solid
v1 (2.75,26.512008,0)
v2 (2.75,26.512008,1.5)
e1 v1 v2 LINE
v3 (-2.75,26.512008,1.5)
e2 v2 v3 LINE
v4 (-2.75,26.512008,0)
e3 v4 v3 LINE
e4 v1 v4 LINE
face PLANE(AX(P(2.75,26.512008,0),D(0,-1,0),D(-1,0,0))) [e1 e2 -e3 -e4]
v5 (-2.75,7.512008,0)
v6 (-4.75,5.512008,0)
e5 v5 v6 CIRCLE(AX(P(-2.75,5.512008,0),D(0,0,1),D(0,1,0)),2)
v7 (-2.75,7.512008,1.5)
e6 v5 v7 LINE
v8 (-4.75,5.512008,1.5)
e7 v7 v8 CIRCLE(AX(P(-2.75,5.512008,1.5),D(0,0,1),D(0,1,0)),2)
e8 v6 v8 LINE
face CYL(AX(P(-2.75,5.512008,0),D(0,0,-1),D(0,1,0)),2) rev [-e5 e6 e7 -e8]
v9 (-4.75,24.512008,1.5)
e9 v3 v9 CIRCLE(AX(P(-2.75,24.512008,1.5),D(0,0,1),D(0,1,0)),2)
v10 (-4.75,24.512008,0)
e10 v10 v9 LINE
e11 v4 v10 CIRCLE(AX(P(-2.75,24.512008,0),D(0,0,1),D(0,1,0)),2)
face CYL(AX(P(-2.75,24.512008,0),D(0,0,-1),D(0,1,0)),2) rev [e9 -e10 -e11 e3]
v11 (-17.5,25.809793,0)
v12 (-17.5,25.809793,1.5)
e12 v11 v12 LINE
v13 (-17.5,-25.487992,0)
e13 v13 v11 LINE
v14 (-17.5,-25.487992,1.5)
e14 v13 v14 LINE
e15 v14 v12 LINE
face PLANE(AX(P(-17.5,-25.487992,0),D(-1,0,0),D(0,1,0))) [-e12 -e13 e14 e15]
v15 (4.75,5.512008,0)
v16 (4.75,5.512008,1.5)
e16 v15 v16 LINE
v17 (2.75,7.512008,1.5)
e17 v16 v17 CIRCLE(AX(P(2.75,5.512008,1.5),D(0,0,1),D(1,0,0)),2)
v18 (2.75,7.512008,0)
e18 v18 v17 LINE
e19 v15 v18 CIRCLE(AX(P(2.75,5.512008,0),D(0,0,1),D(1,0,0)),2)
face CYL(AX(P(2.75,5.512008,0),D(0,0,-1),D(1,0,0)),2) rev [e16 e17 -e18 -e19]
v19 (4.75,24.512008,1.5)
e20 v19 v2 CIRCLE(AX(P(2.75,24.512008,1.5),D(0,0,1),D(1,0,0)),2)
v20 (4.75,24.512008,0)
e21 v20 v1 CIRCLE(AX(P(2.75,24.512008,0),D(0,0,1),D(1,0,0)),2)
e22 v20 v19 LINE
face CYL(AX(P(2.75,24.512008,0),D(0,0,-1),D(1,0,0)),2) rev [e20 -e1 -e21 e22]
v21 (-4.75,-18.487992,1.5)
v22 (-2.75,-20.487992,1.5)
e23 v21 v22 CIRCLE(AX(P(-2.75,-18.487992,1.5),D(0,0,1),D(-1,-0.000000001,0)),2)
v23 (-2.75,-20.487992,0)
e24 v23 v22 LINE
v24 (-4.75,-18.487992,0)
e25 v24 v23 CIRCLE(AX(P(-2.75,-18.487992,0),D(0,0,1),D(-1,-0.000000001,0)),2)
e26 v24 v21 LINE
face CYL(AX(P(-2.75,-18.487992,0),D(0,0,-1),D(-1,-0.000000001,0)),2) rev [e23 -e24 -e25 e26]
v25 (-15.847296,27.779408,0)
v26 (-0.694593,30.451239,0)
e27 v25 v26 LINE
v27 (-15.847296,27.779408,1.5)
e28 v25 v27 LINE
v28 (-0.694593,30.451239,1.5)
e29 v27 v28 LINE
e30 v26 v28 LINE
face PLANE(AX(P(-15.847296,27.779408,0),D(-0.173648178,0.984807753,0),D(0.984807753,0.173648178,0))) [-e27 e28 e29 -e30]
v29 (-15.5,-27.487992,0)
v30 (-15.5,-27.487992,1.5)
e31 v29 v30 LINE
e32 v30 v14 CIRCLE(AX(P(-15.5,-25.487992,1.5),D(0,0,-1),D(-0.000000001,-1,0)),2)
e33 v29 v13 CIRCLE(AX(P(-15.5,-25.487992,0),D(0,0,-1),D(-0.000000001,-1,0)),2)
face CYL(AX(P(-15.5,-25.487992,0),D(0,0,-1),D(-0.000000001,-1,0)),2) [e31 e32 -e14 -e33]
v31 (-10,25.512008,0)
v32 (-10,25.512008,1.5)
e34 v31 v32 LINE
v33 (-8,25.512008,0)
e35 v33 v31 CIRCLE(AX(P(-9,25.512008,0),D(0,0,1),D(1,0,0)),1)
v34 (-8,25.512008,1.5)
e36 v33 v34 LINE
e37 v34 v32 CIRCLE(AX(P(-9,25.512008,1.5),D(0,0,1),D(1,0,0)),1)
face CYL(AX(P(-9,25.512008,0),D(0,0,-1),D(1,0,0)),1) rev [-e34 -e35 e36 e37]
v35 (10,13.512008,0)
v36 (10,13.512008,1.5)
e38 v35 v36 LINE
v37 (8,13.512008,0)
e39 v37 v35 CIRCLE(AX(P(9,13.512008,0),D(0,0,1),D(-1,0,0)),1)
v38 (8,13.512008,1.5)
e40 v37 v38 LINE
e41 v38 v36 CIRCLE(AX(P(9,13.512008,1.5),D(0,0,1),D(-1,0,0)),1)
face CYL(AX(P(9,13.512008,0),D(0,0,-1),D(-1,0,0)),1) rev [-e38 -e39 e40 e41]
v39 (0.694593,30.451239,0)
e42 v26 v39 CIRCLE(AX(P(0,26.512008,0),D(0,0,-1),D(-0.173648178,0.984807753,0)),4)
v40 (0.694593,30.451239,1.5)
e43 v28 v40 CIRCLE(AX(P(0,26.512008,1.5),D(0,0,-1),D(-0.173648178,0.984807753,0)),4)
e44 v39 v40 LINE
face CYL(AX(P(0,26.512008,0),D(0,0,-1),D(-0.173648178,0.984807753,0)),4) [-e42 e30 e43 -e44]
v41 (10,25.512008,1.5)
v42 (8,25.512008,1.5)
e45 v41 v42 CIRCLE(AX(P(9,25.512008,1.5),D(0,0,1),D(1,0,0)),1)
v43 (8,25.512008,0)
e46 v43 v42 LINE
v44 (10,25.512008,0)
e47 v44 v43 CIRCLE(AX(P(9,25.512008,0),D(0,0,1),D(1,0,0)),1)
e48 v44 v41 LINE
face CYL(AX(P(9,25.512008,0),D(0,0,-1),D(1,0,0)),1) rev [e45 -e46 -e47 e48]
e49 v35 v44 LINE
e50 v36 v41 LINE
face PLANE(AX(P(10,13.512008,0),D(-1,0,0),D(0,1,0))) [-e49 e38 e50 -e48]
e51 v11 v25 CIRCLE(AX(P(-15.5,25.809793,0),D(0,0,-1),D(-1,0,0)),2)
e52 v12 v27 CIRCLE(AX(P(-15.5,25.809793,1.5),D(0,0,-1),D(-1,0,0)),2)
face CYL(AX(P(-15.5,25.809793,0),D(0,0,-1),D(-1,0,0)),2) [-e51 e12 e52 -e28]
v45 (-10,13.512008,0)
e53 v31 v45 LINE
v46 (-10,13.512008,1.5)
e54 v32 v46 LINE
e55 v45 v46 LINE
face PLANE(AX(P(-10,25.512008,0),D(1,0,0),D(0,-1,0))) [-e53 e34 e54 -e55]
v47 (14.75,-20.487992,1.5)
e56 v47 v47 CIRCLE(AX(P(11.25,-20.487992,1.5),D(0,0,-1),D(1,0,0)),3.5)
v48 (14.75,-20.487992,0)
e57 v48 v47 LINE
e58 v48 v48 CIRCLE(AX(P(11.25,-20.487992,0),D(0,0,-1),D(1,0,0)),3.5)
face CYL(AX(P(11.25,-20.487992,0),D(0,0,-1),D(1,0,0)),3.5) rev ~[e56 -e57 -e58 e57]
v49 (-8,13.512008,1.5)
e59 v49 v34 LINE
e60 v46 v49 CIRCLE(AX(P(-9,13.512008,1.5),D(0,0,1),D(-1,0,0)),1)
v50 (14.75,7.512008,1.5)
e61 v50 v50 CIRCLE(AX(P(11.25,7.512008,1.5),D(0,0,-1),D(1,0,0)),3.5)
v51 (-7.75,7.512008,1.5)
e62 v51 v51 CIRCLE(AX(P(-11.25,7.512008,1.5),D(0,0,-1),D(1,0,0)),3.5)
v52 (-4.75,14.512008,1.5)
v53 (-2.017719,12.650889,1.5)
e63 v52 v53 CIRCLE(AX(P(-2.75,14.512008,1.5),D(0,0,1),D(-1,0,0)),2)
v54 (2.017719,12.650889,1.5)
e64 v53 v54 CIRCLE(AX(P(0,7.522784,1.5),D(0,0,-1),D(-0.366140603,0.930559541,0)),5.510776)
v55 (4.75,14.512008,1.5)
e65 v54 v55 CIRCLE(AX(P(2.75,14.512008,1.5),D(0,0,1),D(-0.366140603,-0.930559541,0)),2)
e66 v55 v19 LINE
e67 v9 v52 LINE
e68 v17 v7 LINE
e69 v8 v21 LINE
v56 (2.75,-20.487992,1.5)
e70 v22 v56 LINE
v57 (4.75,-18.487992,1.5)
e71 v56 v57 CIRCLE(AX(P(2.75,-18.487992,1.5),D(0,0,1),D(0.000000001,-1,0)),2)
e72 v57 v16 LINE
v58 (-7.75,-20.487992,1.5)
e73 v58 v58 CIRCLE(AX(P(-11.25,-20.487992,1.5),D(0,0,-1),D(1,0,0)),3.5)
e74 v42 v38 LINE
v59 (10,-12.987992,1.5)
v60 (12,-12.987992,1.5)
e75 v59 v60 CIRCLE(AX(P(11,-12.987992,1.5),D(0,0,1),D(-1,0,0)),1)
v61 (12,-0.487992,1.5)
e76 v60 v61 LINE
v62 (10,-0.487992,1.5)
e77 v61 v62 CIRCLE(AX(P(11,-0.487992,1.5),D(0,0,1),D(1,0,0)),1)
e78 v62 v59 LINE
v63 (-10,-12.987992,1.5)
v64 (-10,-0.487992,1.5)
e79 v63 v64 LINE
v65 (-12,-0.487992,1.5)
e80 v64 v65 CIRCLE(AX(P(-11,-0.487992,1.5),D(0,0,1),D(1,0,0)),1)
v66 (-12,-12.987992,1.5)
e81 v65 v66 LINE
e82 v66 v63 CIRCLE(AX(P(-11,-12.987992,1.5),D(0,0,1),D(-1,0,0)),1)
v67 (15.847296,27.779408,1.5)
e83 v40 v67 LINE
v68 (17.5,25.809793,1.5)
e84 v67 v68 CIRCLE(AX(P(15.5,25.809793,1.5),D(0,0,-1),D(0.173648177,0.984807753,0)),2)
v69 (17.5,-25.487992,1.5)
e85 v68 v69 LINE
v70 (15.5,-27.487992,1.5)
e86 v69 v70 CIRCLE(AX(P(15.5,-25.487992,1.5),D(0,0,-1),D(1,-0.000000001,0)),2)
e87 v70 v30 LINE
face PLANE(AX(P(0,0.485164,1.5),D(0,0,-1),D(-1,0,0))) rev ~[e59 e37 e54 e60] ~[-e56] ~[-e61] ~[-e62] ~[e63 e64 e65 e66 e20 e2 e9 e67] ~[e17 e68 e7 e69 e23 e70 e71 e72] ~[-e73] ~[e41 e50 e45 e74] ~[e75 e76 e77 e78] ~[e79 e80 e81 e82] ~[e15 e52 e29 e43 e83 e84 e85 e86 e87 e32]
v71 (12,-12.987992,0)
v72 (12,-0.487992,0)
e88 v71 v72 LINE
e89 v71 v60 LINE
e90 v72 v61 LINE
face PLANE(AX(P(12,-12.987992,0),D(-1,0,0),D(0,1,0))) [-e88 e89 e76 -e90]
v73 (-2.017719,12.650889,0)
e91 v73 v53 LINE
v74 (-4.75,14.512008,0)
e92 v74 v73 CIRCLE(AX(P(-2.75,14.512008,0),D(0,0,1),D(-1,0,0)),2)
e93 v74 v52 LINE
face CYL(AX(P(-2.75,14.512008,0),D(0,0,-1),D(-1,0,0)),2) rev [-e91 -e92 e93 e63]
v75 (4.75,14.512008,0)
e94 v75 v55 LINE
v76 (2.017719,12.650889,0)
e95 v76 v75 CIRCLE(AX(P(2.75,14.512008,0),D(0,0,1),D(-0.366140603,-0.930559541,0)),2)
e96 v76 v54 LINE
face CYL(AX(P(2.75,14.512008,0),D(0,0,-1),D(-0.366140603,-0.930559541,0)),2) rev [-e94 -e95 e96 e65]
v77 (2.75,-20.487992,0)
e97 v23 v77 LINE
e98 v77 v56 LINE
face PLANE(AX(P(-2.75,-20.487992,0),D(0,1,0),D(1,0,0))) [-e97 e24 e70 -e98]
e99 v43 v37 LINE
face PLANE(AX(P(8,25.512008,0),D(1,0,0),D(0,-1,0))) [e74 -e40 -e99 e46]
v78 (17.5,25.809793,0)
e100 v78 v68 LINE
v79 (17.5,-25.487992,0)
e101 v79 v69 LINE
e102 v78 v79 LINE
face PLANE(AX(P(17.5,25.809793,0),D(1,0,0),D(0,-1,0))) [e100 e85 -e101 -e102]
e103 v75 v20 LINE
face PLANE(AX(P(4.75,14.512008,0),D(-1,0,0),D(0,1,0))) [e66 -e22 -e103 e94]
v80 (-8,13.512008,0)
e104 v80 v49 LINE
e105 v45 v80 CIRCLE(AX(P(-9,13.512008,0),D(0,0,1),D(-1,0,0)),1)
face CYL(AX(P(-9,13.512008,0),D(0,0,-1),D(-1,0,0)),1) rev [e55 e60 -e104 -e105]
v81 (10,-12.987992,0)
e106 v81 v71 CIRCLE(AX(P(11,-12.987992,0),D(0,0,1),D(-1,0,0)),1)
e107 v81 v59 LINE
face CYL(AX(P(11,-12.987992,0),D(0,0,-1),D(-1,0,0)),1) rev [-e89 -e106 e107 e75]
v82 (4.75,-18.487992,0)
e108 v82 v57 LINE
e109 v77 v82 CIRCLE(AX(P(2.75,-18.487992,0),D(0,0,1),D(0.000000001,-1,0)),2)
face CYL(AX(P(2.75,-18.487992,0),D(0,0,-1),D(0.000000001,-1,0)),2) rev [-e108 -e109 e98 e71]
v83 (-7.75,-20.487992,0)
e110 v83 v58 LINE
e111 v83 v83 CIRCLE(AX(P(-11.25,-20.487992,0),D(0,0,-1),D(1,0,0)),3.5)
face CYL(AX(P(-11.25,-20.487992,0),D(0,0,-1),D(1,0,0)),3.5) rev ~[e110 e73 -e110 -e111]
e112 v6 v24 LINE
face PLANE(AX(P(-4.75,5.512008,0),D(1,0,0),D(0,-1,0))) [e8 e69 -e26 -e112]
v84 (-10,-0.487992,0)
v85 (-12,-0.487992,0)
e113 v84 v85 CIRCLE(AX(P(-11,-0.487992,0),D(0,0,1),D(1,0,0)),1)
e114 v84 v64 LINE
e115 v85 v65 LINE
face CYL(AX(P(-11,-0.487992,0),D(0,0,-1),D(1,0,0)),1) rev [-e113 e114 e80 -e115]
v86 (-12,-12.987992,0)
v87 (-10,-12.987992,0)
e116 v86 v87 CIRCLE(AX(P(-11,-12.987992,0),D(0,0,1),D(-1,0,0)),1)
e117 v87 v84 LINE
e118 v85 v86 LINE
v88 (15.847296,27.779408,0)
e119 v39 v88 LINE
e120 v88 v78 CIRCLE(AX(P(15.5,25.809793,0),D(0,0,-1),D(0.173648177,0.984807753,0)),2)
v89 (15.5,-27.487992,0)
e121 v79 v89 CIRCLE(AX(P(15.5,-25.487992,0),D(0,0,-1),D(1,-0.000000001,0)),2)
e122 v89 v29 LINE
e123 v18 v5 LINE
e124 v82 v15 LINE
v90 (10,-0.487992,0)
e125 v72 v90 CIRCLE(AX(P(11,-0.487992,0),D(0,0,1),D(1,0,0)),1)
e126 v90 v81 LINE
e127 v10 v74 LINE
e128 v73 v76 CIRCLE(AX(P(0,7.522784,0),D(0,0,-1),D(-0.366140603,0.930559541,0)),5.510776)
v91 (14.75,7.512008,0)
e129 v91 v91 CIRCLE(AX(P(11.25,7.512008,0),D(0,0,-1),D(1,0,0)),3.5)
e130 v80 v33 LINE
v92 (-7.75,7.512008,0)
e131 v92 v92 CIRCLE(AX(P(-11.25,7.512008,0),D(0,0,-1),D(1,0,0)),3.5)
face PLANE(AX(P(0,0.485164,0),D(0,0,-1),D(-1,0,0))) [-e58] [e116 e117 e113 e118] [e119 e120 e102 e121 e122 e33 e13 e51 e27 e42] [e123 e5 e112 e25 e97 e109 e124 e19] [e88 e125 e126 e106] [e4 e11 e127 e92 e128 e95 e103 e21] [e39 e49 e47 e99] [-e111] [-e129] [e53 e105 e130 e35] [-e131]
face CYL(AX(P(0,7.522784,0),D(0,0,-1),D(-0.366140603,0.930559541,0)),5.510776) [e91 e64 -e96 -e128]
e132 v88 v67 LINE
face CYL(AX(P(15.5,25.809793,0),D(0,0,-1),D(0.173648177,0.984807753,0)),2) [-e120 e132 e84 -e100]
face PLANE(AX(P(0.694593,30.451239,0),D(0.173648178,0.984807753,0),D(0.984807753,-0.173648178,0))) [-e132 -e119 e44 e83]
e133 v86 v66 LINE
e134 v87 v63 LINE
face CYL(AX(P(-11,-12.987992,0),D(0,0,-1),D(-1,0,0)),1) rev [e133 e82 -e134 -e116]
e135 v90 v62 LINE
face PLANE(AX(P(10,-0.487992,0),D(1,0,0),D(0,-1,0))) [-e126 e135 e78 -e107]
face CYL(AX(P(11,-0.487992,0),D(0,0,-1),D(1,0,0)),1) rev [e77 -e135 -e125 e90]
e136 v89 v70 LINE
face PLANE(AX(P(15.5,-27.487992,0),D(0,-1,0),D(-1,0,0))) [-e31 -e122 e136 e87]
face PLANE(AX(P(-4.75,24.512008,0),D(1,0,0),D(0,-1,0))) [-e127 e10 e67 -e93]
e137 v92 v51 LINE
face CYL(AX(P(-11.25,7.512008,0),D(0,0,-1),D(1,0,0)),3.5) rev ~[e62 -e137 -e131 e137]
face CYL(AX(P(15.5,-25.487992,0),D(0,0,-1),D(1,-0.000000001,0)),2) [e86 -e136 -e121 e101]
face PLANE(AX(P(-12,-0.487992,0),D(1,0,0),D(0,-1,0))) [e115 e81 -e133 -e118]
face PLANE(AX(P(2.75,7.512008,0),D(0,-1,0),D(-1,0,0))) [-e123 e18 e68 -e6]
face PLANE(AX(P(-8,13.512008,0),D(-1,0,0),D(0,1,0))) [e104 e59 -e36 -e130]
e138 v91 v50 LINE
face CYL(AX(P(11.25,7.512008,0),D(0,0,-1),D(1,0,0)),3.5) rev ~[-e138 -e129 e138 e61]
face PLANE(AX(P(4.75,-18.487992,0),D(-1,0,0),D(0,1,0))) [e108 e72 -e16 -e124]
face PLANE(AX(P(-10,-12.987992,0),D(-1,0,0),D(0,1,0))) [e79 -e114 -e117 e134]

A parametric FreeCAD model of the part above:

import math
import FreeCAD as App
import Part
import Sketcher

V = App.Vector
Q = App.Units.Quantity

doc = App.newDocument("Part")
body = doc.addObject("PartDesign::Body", "Body")

# Sketch on XY plane
sketch1 = doc.addObject("Sketcher::SketchObject", "Sketch")
body.addObject(sketch1)
sketch1.AttachmentSupport = (doc.XY_Plane, [""])
sketch1.MapMode = "FlatFace"
sketch1.addGeometry([
    Part.LineSegment(V(-15.847296, 27.779408, 0), V(-0.694593, 30.451239, 0)),  # 0
    Part.ArcOfCircle(Part.Circle(V(0, 26.512008, 0), V(0, 0, 1), 4), math.radians(80), math.radians(100)),  # 1
    Part.LineSegment(V(0.694593, 30.451239, 0), V(15.847296, 27.779408, 0)),  # 2
    Part.ArcOfCircle(Part.Circle(V(15.5, 25.809793, 0), V(0, 0, 1), 2), math.radians(0), math.radians(80)),  # 3
    Part.LineSegment(V(17.5, 25.809793, 0), V(17.5, -25.487992, 0)),  # 4
    Part.ArcOfCircle(Part.Circle(V(15.5, -25.487992, 0), V(0, 0, 1), 2), math.radians(-90), math.radians(0)),  # 5
    Part.LineSegment(V(15.5, -27.487992, 0), V(-15.5, -27.487992, 0)),  # 6
    Part.ArcOfCircle(Part.Circle(V(-15.5, -25.487992, 0), V(0, 0, 1), 2), math.radians(-180), math.radians(-90)),  # 7
    Part.LineSegment(V(-17.5, -25.487992, 0), V(-17.5, 25.809793, 0)),  # 8
    Part.ArcOfCircle(Part.Circle(V(-15.5, 25.809793, 0), V(0, 0, 1), 2), math.radians(100), math.radians(180)),  # 9
    Part.Circle(V(11.25, -20.487992, 0), V(0, 0, 1), 3.5),  # 10
    Part.ArcOfCircle(Part.Circle(V(11, -0.487992, 0), V(0, 0, 1), 1), math.radians(0), math.radians(180)),  # 11
    Part.LineSegment(V(10, -0.487992, 0), V(10, -12.987992, 0)),  # 12
    Part.ArcOfCircle(Part.Circle(V(11, -12.987992, 0), V(0, 0, 1), 1), math.radians(180), math.radians(360)),  # 13
    Part.LineSegment(V(12, -12.987992, 0), V(12, -0.487992, 0)),  # 14
    Part.Circle(V(-11.25, -20.487992, 0), V(0, 0, 1), 3.5),  # 15
    Part.ArcOfCircle(Part.Circle(V(-2.75, 5.512008, 0), V(0, 0, 1), 2), math.radians(90), math.radians(180)),  # 16
    Part.LineSegment(V(-4.75, 5.512008, 0), V(-4.75, -18.487992, 0)),  # 17
    Part.ArcOfCircle(Part.Circle(V(-2.75, -18.487992, 0), V(0, 0, 1), 2), math.radians(-180), math.radians(-90)),  # 18
    Part.LineSegment(V(-2.75, -20.487992, 0), V(2.75, -20.487992, 0)),  # 19
    Part.ArcOfCircle(Part.Circle(V(2.75, -18.487992, 0), V(0, 0, 1), 2), math.radians(-90), math.radians(0)),  # 20
    Part.LineSegment(V(4.75, -18.487992, 0), V(4.75, 5.512008, 0)),  # 21
    Part.ArcOfCircle(Part.Circle(V(2.75, 5.512008, 0), V(0, 0, 1), 2), math.radians(0), math.radians(90)),  # 22
    Part.LineSegment(V(2.75, 7.512008, 0), V(-2.75, 7.512008, 0)),  # 23
    Part.ArcOfCircle(Part.Circle(V(-11, -0.487992, 0), V(0, 0, 1), 1), math.radians(0), math.radians(180)),  # 24
    Part.LineSegment(V(-12, -0.487992, 0), V(-12, -12.987992, 0)),  # 25
    Part.ArcOfCircle(Part.Circle(V(-11, -12.987992, 0), V(0, 0, 1), 1), math.radians(180), math.radians(360)),  # 26
    Part.LineSegment(V(-10, -12.987992, 0), V(-10, -0.487992, 0)),  # 27
    Part.Circle(V(11.25, 7.512008, 0), V(0, 0, 1), 3.5),  # 28
    Part.ArcOfCircle(Part.Circle(V(9, 25.512008, 0), V(0, 0, 1), 1), math.radians(0), math.radians(180)),  # 29
    Part.LineSegment(V(8, 25.512008, 0), V(8, 13.512008, 0)),  # 30
    Part.ArcOfCircle(Part.Circle(V(9, 13.512008, 0), V(0, 0, 1), 1), math.radians(180), math.radians(360)),  # 31
    Part.LineSegment(V(10, 13.512008, 0), V(10, 25.512008, 0)),  # 32
    Part.ArcOfCircle(Part.Circle(V(2.75, 14.512008, 0), V(0, 0, 1), 2), math.radians(-111.477794), math.radians(0)),  # 33
    Part.LineSegment(V(4.75, 14.512008, 0), V(4.75, 24.512008, 0)),  # 34
    Part.ArcOfCircle(Part.Circle(V(2.75, 24.512008, 0), V(0, 0, 1), 2), math.radians(0), math.radians(90)),  # 35
    Part.LineSegment(V(2.75, 26.512008, 0), V(-2.75, 26.512008, 0)),  # 36
    Part.ArcOfCircle(Part.Circle(V(-2.75, 24.512008, 0), V(0, 0, 1), 2), math.radians(90), math.radians(180)),  # 37
    Part.LineSegment(V(-4.75, 24.512008, 0), V(-4.75, 14.512008, 0)),  # 38
    Part.ArcOfCircle(Part.Circle(V(-2.75, 14.512008, 0), V(0, 0, 1), 2), math.radians(180), math.radians(291.477794)),  # 39
    Part.ArcOfCircle(Part.Circle(V(0, 7.522784, 0), V(0, 0, 1), 5.510776), math.radians(68.522206), math.radians(111.477794)),  # 40
    Part.Circle(V(-11.25, 7.512008, 0), V(0, 0, 1), 3.5),  # 41
    Part.ArcOfCircle(Part.Circle(V(-9, 25.512008, 0), V(0, 0, 1), 1), math.radians(0), math.radians(180)),  # 42
    Part.LineSegment(V(-10, 25.512008, 0), V(-10, 13.512008, 0)),  # 43
    Part.ArcOfCircle(Part.Circle(V(-9, 13.512008, 0), V(0, 0, 1), 1), math.radians(180), math.radians(360)),  # 44
    Part.LineSegment(V(-8, 13.512008, 0), V(-8, 25.512008, 0)),  # 45
], False)
sketch1.addConstraint([
    Sketcher.Constraint("Tangent", 0, 2, 1, 2),
    Sketcher.Constraint("Tangent", 1, 1, 2, 1),
    Sketcher.Constraint("Tangent", 2, 2, 3, 2),
    Sketcher.Constraint("Tangent", 3, 1, 4, 1),
    Sketcher.Constraint("Tangent", 4, 2, 5, 2),
    Sketcher.Constraint("Tangent", 5, 1, 6, 1),
    Sketcher.Constraint("Tangent", 6, 2, 7, 2),
    Sketcher.Constraint("Tangent", 7, 1, 8, 1),
    Sketcher.Constraint("Tangent", 8, 2, 9, 2),
    Sketcher.Constraint("Tangent", 9, 1, 0, 1),
    Sketcher.Constraint("Tangent", 11, 2, 12, 1),
    Sketcher.Constraint("Tangent", 12, 2, 13, 1),
    Sketcher.Constraint("Tangent", 13, 2, 14, 1),
    Sketcher.Constraint("Tangent", 14, 2, 11, 1),
    Sketcher.Constraint("Tangent", 16, 2, 17, 1),
    Sketcher.Constraint("Tangent", 17, 2, 18, 1),
    Sketcher.Constraint("Tangent", 18, 2, 19, 1),
    Sketcher.Constraint("Tangent", 19, 2, 20, 1),
    Sketcher.Constraint("Tangent", 20, 2, 21, 1),
    Sketcher.Constraint("Tangent", 21, 2, 22, 1),
    Sketcher.Constraint("Tangent", 22, 2, 23, 1),
    Sketcher.Constraint("Tangent", 23, 2, 16, 1),
    Sketcher.Constraint("Tangent", 24, 2, 25, 1),
    Sketcher.Constraint("Tangent", 25, 2, 26, 1),
    Sketcher.Constraint("Tangent", 26, 2, 27, 1),
    Sketcher.Constraint("Tangent", 27, 2, 24, 1),
    Sketcher.Constraint("Tangent", 29, 2, 30, 1),
    Sketcher.Constraint("Tangent", 30, 2, 31, 1),
    Sketcher.Constraint("Tangent", 31, 2, 32, 1),
    Sketcher.Constraint("Tangent", 32, 2, 29, 1),
    Sketcher.Constraint("Tangent", 33, 2, 34, 1),
    Sketcher.Constraint("Tangent", 34, 2, 35, 1),
    Sketcher.Constraint("Tangent", 35, 2, 36, 1),
    Sketcher.Constraint("Tangent", 36, 2, 37, 1),
    Sketcher.Constraint("Tangent", 37, 2, 38, 1),
    Sketcher.Constraint("Tangent", 38, 2, 39, 1),
    Sketcher.Constraint("Tangent", 39, 2, 40, 2),
    Sketcher.Constraint("Tangent", 40, 1, 33, 1),
    Sketcher.Constraint("Tangent", 42, 2, 43, 1),
    Sketcher.Constraint("Tangent", 43, 2, 44, 1),
    Sketcher.Constraint("Tangent", 44, 2, 45, 1),
    Sketcher.Constraint("Tangent", 45, 2, 42, 1),
    Sketcher.Constraint("Vertical", 4),
    Sketcher.Constraint("Horizontal", 6),
    Sketcher.Constraint("Vertical", 8),
    Sketcher.Constraint("Vertical", 12),
    Sketcher.Constraint("Vertical", 14),
    Sketcher.Constraint("Vertical", 17),
    Sketcher.Constraint("Horizontal", 19),
    Sketcher.Constraint("Vertical", 21),
    Sketcher.Constraint("Horizontal", 23),
    Sketcher.Constraint("Vertical", 25),
    Sketcher.Constraint("Vertical", 27),
    Sketcher.Constraint("Vertical", 30),
    Sketcher.Constraint("Vertical", 32),
    Sketcher.Constraint("Vertical", 34),
    Sketcher.Constraint("Horizontal", 36),
    Sketcher.Constraint("Vertical", 38),
    Sketcher.Constraint("Vertical", 43),
    Sketcher.Constraint("Vertical", 45),
    Sketcher.Constraint("Equal", 3, 5),
    Sketcher.Constraint("Equal", 5, 7),
    Sketcher.Constraint("Equal", 7, 9),
    Sketcher.Constraint("Equal", 10, 15),
    Sketcher.Constraint("Equal", 9, 16),
    Sketcher.Constraint("Equal", 16, 18),
    Sketcher.Constraint("Equal", 18, 20),
    Sketcher.Constraint("Equal", 20, 22),
    Sketcher.Constraint("Equal", 13, 24),
    Sketcher.Constraint("Equal", 15, 28),
    Sketcher.Constraint("Equal", 26, 29),
    Sketcher.Constraint("Equal", 22, 33),
    Sketcher.Constraint("Equal", 33, 35),
    Sketcher.Constraint("Equal", 35, 37),
    Sketcher.Constraint("Equal", 37, 39),
    Sketcher.Constraint("Equal", 28, 41),
    Sketcher.Constraint("Equal", 31, 42),
    Sketcher.Constraint("Symmetric", 3, 3, 9, 3, -2),
    Sketcher.Constraint("Symmetric", 10, 3, 15, 3, -2),
    Sketcher.Constraint("Symmetric", 11, 3, 24, 3, -2),
    Sketcher.Constraint("Symmetric", 33, 3, 39, 3, -2),
    Sketcher.Constraint("Symmetric", 28, 3, 41, 3, -2),
    Sketcher.Constraint("Symmetric", 29, 3, 42, 3, -2),
    Sketcher.Constraint("PointOnObject", 1, 3, -2),
    Sketcher.Constraint("Horizontal", 13, 3, 26, 3),
    Sketcher.Constraint("Horizontal", 31, 3, 44, 3),
    Sketcher.Constraint("Horizontal", 15, 3, 18, 2),
    Sketcher.Constraint("Horizontal", 41, 3, 22, 2),
    Sketcher.Constraint("Horizontal", 1, 3, 35, 2),
    Sketcher.Constraint("Vertical", 10, 3, 28, 3),
    Sketcher.Constraint("Vertical", 22, 3, 33, 3),
    Sketcher.Constraint("Vertical", 18, 3, 37, 3),
    Sketcher.Constraint("Vertical", 12, 2, 31, 2),
    Sketcher.Constraint("Diameter", 10, 7.0),
    Sketcher.Constraint("Radius", 1, 4.0),
    Sketcher.Constraint("Radius", 3, 2.0),
    Sketcher.Constraint("Radius", 11, 1.0),
    Sketcher.Constraint("DistanceX", 6, 2, 6, 1, 31.0),
    Sketcher.Constraint("DistanceY", 17, 2, 17, 1, 24.0),
    Sketcher.Constraint("DistanceY", 30, 2, 30, 1, 12.0),
    Sketcher.Constraint("DistanceY", 34, 1, 34, 2, 10.0),
    Sketcher.Constraint("Angle", 0, Q("10 deg")),
    Sketcher.Constraint("DistanceX", 19, 1, 19, 2, 5.5),
    Sketcher.Constraint("DistanceY", 12, 2, 12, 1, 12.5),
    Sketcher.Constraint("DistanceX", -1, 1, 11, 3, 11.0),
    Sketcher.Constraint("DistanceX", -1, 1, 10, 3, 11.25),
    Sketcher.Constraint("Radius", 40, 5.510776),
    Sketcher.Constraint("DistanceY", 4, 2, 4, 1, 51.297785),
    Sketcher.Constraint("DistanceY", -1, 1, 0, 2, 30.451239),
    Sketcher.Constraint("DistanceY", 10, 3, -1, 1, 20.487992),
    Sketcher.Constraint("DistanceY", 11, 3, -1, 1, 0.487992),
    Sketcher.Constraint("DistanceY", -1, 1, 29, 3, 25.512008),
])
pad1 = doc.addObject("PartDesign::Pad", "Pad")
body.addObject(pad1)
pad1.Profile = sketch1
pad1.Length = 1.5

doc.recompute()
